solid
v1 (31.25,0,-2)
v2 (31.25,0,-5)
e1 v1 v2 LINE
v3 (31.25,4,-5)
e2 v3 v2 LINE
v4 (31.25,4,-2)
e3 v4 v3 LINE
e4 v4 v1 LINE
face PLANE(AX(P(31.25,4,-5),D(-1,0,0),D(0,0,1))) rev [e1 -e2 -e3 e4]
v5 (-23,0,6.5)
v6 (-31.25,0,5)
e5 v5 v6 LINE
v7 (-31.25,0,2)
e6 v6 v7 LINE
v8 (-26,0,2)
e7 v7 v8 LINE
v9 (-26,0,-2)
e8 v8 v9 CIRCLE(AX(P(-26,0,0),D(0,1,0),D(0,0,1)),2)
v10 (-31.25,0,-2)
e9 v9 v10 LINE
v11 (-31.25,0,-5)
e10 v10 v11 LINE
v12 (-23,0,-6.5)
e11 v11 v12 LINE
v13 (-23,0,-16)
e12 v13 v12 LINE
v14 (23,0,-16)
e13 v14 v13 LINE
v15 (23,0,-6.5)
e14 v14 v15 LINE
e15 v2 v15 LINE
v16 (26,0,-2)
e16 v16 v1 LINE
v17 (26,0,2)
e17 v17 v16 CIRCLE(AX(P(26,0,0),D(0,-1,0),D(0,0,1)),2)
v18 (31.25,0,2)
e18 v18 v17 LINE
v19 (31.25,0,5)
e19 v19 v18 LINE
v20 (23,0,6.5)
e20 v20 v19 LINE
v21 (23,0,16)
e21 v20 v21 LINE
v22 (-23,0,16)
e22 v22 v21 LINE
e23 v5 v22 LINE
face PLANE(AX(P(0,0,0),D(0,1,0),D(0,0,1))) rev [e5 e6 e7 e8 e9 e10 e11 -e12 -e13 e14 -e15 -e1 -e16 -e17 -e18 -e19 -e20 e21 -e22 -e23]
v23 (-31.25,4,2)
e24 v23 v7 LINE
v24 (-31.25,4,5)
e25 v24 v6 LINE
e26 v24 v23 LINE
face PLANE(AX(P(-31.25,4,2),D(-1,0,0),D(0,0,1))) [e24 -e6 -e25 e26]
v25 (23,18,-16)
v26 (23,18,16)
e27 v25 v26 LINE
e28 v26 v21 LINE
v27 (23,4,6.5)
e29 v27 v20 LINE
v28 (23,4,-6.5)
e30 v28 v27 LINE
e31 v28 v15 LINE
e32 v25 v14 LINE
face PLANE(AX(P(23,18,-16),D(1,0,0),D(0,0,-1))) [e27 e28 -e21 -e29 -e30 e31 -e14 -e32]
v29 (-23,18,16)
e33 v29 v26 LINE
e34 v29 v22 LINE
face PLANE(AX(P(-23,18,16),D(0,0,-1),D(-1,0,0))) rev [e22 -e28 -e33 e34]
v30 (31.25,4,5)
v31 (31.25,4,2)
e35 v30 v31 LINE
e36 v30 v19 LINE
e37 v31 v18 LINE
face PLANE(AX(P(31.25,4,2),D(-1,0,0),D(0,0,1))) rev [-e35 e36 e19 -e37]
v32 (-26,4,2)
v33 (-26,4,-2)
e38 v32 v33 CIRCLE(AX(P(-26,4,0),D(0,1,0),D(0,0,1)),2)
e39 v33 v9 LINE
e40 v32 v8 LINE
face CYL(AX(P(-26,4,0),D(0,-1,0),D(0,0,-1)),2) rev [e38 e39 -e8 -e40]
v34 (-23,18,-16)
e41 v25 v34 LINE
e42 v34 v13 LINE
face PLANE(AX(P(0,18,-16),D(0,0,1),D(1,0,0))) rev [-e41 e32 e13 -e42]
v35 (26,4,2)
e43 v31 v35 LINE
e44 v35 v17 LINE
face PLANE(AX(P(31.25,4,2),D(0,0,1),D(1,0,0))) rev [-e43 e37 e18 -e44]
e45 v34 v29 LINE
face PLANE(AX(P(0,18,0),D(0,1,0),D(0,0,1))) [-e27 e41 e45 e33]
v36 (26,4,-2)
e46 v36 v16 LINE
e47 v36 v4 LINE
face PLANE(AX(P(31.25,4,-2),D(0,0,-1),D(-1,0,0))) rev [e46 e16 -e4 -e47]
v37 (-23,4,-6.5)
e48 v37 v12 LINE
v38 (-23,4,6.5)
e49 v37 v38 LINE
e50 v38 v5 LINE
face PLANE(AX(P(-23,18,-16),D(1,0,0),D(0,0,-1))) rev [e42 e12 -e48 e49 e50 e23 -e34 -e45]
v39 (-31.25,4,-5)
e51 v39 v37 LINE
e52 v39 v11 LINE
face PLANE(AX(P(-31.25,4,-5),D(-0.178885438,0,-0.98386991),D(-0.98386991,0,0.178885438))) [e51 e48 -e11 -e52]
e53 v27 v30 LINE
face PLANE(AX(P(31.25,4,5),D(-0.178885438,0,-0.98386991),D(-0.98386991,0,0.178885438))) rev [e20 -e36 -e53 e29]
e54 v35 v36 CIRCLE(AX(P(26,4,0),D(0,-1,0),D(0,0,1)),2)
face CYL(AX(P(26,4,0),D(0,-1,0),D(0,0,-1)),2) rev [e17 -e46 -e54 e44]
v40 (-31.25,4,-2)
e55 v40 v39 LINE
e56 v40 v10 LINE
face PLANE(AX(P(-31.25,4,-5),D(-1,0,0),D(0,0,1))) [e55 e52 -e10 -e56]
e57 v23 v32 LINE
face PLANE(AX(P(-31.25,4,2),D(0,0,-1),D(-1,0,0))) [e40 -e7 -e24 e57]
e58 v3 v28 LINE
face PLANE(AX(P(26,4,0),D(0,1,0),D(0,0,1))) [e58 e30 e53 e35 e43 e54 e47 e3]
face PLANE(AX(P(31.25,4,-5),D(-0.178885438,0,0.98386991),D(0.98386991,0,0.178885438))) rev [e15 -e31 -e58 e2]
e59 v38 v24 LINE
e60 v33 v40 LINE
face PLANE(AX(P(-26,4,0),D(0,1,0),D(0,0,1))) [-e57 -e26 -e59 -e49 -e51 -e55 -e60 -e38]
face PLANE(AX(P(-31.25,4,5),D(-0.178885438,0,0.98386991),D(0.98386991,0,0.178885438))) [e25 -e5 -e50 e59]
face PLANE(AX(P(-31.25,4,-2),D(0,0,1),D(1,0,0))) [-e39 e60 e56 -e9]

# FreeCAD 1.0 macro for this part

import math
import FreeCAD as App
import Part
import Sketcher

V = App.Vector


def add_polygon(sketch, points):
    """Adds a closed chain of lines whose ends are joined by coincident constraints."""
    first, n = sketch.GeometryCount, len(points)
    for a, b in zip(points, points[1:] + points[:1]):
        sketch.addGeometry(Part.LineSegment(App.Vector(*a, 0), App.Vector(*b, 0)), False)
    for i in range(n):
        sketch.addConstraint(Sketcher.Constraint("Coincident", first + i, 2, first + (i + 1) % n, 1))

doc = App.newDocument("Part")
body = doc.addObject("PartDesign::Body", "Body")

sketch1 = body.newObject("Sketcher::SketchObject", "Sketch")
sketch1.AttachmentSupport = (doc.getObject("XZ_Plane"), [""])
sketch1.MapMode = "FlatFace"
add_polygon(sketch1, [(-23, -16), (-23, 16), (0, 16), (0, -16)])
sketch1.addConstraint([
    Sketcher.Constraint("Vertical", 0),
    Sketcher.Constraint("Horizontal", 1),
    Sketcher.Constraint("Vertical", 2),
    Sketcher.Constraint("Horizontal", 3),
    Sketcher.Constraint("Symmetric", 1, 2, 2, 2, -1, 1),
    Sketcher.Constraint("DistanceX", 1, 1, 1, 2, 23.0),
    Sketcher.Constraint("DistanceY", 0, 1, 0, 2, 32.0),
])
pad1 = body.newObject("PartDesign::Pad", "Pad")
pad1.Profile = sketch1
pad1.Length = 18
pad1.Reversed = True

sketch2 = body.newObject("Sketcher::SketchObject", "Sketch001")
sketch2.AttachmentSupport = (doc.getObject("XZ_Plane"), [""])
sketch2.MapMode = "FlatFace"
sketch2.addGeometry([
    Part.LineSegment(V(-31.2, -2, 0), V(-31.2, -5, 0)),
    Part.LineSegment(V(-31.2, -5, 0), V(-23, -6.5, 0)),
    Part.LineSegment(V(-23, -6.5, 0), V(-23, 6.5, 0)),
    Part.LineSegment(V(-23, 6.5, 0), V(-31.2, 5, 0)),
    Part.LineSegment(V(-31.2, 5, 0), V(-31.2, 2, 0)),
    Part.LineSegment(V(-31.2, 2, 0), V(-26, 2, 0)),
    Part.ArcOfCircle(Part.Circle(V(-26, 0, 0), V(0, 0, 1), 2), math.radians(-90), math.radians(90)),
    Part.LineSegment(V(-26, -2, 0), V(-31.2, -2, 0)),
], False)
sketch2.addConstraint([
    Sketcher.Constraint("Coincident", 0, 2, 1, 1),
    Sketcher.Constraint("Coincident", 1, 2, 2, 1),
    Sketcher.Constraint("Coincident", 2, 2, 3, 1),
    Sketcher.Constraint("Coincident", 3, 2, 4, 1),
    Sketcher.Constraint("Coincident", 4, 2, 5, 1),
    Sketcher.Constraint("Tangent", 5, 2, 6, 2),
    Sketcher.Constraint("Tangent", 6, 1, 7, 1),
    Sketcher.Constraint("Coincident", 7, 2, 0, 1),
    Sketcher.Constraint("Vertical", 0),
    Sketcher.Constraint("Vertical", 2),
    Sketcher.Constraint("Vertical", 4),
    Sketcher.Constraint("Horizontal", 5),
    Sketcher.Constraint("Horizontal", 7),
    Sketcher.Constraint("Symmetric", 0, 2, 3, 2, -1),
    Sketcher.Constraint("PointOnObject", 6, 3, -1),
    Sketcher.Constraint("Equal", 1, 3),
    Sketcher.Constraint("Radius", 6, 2.0),
    Sketcher.Constraint("DistanceY", 0, 2, 0, 1, 3.0),
    Sketcher.Constraint("DistanceY", 2, 1, 2, 2, 13.0),
    Sketcher.Constraint("DistanceX", 6, 3, -1, 1, 26.0),
    Sketcher.Constraint("DistanceX", 1, 2, -1, 1, 23.0),
    Sketcher.Constraint("DistanceX", 5, 1, 5, 2, 5.25),
])
pad2 = body.newObject("PartDesign::Pad", "Pad001")
pad2.Profile = sketch2
pad2.Length = 4
pad2.Reversed = True
doc.recompute()

mirrored = body.newObject("PartDesign::Mirrored", "Mirrored")
mirrored.Originals = [pad1, pad2]
mirrored.MirrorPlane = (doc.getObject("YZ_Plane"), [""])
body.Tip = mirrored

doc.recompute()
